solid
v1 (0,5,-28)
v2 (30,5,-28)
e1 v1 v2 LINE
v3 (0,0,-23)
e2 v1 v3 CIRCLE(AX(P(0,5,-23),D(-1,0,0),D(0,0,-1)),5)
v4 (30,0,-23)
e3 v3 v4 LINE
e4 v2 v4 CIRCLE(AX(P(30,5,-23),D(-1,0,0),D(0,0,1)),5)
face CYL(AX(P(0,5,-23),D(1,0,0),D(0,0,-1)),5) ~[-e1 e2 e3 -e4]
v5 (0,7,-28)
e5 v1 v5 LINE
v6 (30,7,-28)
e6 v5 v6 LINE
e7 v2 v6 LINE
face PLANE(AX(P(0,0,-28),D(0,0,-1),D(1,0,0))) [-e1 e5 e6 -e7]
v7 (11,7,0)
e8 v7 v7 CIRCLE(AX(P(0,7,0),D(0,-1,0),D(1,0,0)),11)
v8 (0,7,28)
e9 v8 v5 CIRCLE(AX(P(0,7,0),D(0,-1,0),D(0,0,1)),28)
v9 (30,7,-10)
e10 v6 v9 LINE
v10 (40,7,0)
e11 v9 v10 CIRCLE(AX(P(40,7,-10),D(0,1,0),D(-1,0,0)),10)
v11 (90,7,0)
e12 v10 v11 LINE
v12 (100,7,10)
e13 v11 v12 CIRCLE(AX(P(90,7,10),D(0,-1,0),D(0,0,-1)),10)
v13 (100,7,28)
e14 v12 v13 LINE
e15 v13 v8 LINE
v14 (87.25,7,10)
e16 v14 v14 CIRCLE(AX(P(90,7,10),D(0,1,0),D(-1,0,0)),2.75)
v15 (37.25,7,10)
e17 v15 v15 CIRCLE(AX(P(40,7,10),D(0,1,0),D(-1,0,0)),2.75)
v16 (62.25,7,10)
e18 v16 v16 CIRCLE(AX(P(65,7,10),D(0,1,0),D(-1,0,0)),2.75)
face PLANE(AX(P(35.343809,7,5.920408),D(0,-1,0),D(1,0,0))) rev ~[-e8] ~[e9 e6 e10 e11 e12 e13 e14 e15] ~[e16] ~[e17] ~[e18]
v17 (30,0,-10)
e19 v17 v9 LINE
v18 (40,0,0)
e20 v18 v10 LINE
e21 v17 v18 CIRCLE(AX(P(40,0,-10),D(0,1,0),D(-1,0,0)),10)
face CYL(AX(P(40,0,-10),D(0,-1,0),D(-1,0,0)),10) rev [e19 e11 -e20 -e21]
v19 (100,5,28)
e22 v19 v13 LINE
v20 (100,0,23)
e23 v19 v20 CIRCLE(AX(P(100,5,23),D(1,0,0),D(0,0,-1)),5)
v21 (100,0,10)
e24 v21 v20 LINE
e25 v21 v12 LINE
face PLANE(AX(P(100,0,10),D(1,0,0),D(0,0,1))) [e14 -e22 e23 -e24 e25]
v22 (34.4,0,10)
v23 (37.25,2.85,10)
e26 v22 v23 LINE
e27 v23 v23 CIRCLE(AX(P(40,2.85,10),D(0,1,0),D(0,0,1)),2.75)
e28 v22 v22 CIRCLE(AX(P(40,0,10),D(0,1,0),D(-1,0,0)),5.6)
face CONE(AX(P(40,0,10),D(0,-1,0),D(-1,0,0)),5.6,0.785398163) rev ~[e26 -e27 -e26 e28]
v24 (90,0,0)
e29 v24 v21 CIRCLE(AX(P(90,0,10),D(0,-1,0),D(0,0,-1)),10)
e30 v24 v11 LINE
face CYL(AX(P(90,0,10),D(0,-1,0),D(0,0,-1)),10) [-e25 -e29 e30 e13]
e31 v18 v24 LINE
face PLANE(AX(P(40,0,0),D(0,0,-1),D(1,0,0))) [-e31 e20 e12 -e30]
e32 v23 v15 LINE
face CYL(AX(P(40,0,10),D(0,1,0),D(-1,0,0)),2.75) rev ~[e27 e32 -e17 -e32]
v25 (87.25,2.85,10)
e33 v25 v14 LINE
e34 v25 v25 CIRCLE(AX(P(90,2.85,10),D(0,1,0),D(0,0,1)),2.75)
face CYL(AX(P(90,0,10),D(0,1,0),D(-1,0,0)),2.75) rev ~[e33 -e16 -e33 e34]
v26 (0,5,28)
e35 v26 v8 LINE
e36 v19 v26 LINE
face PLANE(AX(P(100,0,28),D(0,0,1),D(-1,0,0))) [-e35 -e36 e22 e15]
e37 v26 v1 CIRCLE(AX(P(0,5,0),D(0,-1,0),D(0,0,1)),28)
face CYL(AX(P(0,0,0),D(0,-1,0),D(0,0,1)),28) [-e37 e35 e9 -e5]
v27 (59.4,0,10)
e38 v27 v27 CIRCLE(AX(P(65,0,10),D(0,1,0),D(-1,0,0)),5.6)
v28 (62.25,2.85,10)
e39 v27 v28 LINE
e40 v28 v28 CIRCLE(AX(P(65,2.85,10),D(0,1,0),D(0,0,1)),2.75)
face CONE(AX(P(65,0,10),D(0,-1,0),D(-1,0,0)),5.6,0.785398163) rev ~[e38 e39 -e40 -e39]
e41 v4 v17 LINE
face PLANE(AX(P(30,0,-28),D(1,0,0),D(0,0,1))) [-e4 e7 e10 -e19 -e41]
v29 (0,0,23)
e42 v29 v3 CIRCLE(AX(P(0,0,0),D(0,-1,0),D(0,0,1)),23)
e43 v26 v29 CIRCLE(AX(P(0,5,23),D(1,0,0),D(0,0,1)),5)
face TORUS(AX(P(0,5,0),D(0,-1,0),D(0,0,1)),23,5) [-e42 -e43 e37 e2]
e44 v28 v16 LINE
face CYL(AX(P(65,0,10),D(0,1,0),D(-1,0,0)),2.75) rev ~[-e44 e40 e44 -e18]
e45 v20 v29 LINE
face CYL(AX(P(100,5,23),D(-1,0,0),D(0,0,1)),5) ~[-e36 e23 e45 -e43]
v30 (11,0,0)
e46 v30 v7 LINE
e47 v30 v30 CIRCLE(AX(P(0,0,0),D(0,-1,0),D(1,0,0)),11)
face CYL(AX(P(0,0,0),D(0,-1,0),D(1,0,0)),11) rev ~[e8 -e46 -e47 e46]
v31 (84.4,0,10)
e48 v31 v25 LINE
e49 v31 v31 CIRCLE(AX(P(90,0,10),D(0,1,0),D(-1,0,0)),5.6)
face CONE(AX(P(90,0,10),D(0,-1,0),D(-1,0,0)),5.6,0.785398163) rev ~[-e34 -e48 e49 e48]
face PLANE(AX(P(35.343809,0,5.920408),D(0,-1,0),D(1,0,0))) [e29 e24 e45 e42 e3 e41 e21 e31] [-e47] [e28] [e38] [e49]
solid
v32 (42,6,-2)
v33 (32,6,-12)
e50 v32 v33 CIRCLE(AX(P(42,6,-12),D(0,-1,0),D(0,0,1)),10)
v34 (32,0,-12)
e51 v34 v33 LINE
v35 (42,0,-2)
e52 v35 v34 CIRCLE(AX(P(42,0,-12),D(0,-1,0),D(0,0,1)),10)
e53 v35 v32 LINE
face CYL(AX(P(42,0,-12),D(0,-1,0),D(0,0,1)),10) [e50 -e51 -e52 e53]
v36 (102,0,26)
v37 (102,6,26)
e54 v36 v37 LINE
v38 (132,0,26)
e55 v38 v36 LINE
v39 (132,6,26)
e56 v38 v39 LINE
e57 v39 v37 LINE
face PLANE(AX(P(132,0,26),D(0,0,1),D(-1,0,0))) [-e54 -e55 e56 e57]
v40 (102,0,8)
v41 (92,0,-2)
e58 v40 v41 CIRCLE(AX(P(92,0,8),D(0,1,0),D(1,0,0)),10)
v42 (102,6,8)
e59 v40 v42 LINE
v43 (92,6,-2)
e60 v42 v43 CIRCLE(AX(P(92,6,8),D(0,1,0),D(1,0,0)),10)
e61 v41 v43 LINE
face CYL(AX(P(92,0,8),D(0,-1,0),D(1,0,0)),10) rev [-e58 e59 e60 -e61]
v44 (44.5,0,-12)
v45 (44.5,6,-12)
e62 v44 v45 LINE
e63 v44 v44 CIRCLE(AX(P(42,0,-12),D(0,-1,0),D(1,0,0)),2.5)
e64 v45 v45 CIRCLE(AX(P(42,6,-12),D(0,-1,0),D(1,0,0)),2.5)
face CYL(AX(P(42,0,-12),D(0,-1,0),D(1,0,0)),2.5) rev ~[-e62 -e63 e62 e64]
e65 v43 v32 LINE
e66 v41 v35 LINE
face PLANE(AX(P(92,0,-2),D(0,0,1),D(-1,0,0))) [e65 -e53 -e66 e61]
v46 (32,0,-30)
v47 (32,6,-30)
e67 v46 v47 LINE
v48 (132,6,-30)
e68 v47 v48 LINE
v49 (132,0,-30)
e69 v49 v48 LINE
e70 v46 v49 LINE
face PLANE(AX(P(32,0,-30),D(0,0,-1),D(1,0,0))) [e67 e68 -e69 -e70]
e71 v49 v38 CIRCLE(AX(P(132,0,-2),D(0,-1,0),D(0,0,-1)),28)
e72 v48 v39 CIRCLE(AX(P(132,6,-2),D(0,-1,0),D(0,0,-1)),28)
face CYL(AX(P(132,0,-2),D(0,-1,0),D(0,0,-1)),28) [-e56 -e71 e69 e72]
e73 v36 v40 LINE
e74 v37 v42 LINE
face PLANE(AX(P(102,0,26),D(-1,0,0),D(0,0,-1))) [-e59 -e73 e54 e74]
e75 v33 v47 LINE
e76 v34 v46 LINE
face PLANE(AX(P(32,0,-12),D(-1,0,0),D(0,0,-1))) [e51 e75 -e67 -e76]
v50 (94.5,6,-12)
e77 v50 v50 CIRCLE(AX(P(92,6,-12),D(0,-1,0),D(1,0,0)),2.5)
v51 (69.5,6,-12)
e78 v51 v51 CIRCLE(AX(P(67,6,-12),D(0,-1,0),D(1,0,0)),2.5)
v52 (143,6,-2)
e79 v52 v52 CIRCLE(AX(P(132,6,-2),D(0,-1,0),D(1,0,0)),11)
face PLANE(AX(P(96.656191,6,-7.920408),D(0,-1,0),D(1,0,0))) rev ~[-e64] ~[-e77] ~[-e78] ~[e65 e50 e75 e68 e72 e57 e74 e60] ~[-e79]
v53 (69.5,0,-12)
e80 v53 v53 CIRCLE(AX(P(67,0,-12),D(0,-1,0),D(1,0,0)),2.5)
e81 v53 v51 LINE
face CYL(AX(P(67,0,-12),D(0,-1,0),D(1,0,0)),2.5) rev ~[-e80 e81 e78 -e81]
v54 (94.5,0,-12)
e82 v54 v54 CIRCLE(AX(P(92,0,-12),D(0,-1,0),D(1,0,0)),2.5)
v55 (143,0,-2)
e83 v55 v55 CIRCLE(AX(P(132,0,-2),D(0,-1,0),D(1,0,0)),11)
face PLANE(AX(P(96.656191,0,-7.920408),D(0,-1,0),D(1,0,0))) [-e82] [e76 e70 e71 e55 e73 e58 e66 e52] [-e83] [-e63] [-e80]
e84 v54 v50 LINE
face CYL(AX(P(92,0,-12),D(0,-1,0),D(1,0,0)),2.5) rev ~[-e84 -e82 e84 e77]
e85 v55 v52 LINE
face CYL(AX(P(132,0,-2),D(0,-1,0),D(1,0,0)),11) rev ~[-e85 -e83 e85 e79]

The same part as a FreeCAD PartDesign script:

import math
import FreeCAD as App
import Part
import Sketcher

V = App.Vector


def edges_at(feature, points):
    """Names of the edges that pass closest to the given points."""
    edges = feature.Shape.Edges
    near = lambda p: min(range(len(edges)), key=lambda i: edges[i].distToShape(Part.Vertex(*p))[0])
    return sorted({f"Edge{near(p) + 1}" for p in points})

doc = App.newDocument("Part")
body = doc.addObject("PartDesign::Body", "Body")

# Sketch on XZ plane
sketch1 = doc.addObject("Sketcher::SketchObject", "Sketch")
body.addObject(sketch1)
sketch1.AttachmentSupport = (doc.XZ_Plane, [""])
sketch1.MapMode = "FlatFace"
sketch1.addGeometry(Part.LineSegment(V(100, 28, 0), V(0, 28, 0)), False)
sketch1.addGeometry(Part.ArcOfCircle(Part.Circle(V(0, 0, 0), V(0, 0, 1), 28), math.radians(90), math.radians(270)), False)
sketch1.addGeometry(Part.LineSegment(V(0, -28, 0), V(30, -28, 0)), False)
sketch1.addGeometry(Part.LineSegment(V(30, -28, 0), V(30, -10, 0)), False)
sketch1.addGeometry(Part.ArcOfCircle(Part.Circle(V(40, -10, 0), V(0, 0, 1), 10), math.radians(90), math.radians(180)), False)
sketch1.addGeometry(Part.LineSegment(V(40, 0, 0), V(90, 0, 0)), False)
sketch1.addGeometry(Part.ArcOfCircle(Part.Circle(V(90, 10, 0), V(0, 0, 1), 10), math.radians(-90), math.radians(0)), False)
sketch1.addGeometry(Part.LineSegment(V(100, 10, 0), V(100, 28, 0)), False)
sketch1.addGeometry(Part.Circle(V(0, 0, 0), V(0, 0, 1), 11), False)
sketch1.addGeometry(Part.Circle(V(40, 10, 0), V(0, 0, 1), 2.5), False)
sketch1.addGeometry(Part.Circle(V(65, 10, 0), V(0, 0, 1), 2.5), False)
sketch1.addGeometry(Part.Circle(V(90, 10, 0), V(0, 0, 1), 2.5), False)
sketch1.addConstraint(Sketcher.Constraint("Tangent", 0, 2, 1, 1))
sketch1.addConstraint(Sketcher.Constraint("Tangent", 1, 2, 2, 1))
sketch1.addConstraint(Sketcher.Constraint("Coincident", 2, 2, 3, 1))
sketch1.addConstraint(Sketcher.Constraint("Tangent", 3, 2, 4, 2))
sketch1.addConstraint(Sketcher.Constraint("Tangent", 4, 1, 5, 1))
sketch1.addConstraint(Sketcher.Constraint("Tangent", 5, 2, 6, 1))
sketch1.addConstraint(Sketcher.Constraint("Tangent", 6, 2, 7, 1))
sketch1.addConstraint(Sketcher.Constraint("Coincident", 7, 2, 0, 1))
sketch1.addConstraint(Sketcher.Constraint("Horizontal", 0))
sketch1.addConstraint(Sketcher.Constraint("Horizontal", 2))
sketch1.addConstraint(Sketcher.Constraint("Vertical", 3))
sketch1.addConstraint(Sketcher.Constraint("Horizontal", 5))
sketch1.addConstraint(Sketcher.Constraint("Vertical", 7))
sketch1.addConstraint(Sketcher.Constraint("Coincident", 1, 3, -1, 1))
sketch1.addConstraint(Sketcher.Constraint("Coincident", 8, 3, -1, 1))
sketch1.addConstraint(Sketcher.Constraint("Coincident", 11, 3, 6, 3))
sketch1.addConstraint(Sketcher.Constraint("Equal", 4, 6))
sketch1.addConstraint(Sketcher.Constraint("Equal", 9, 10))
sketch1.addConstraint(Sketcher.Constraint("Equal", 10, 11))
sketch1.addConstraint(Sketcher.Constraint("Symmetric", 4, 3, 9, 3, -1))
sketch1.addConstraint(Sketcher.Constraint("PointOnObject", 4, 1, -1))
sketch1.addConstraint(Sketcher.Constraint("Horizontal", 9, 3, 10, 3))
sketch1.addConstraint(Sketcher.Constraint("Diameter", 8, 22.0))
sketch1.addConstraint(Sketcher.Constraint("Diameter", 9, 5.0))
sketch1.addConstraint(Sketcher.Constraint("Radius", 1, 28.0))
sketch1.addConstraint(Sketcher.Constraint("Radius", 4, 10.0))
sketch1.addConstraint(Sketcher.Constraint("DistanceX", 0, 2, 0, 1, 100.0))
sketch1.addConstraint(Sketcher.Constraint("DistanceX", 2, 1, 2, 2, 30.0))
sketch1.addConstraint(Sketcher.Constraint("DistanceX", -1, 1, 10, 3, 65.0))
pad1 = doc.addObject("PartDesign::Pad", "Pad")
body.addObject(pad1)
pad1.Profile = sketch1
pad1.Length = 7
pad1.Reversed = True
doc.recompute()

fillet = doc.addObject("PartDesign::Fillet", "Fillet")
body.addObject(fillet)
fillet.Base = (pad1, edges_at(pad1, [(50, 0, 28)]))
fillet.Radius = 5

# Sketch on XZ plane
sketch2 = doc.addObject("Sketcher::SketchObject", "Sketch001")
body.addObject(sketch2)
sketch2.AttachmentSupport = (doc.XZ_Plane, [""])
sketch2.MapMode = "FlatFace"
sketch2.addGeometry(Part.Circle(V(90, 10, 0), V(0, 0, 1), 2.8), False)
sketch2.addGeometry(Part.Circle(V(65, 10, 0), V(0, 0, 1), 2.8), False)
sketch2.addGeometry(Part.Circle(V(40, 10, 0), V(0, 0, 1), 2.8), False)
sketch2.addConstraint(Sketcher.Constraint("Equal", 0, 1))
sketch2.addConstraint(Sketcher.Constraint("Equal", 1, 2))
sketch2.addConstraint(Sketcher.Constraint("Horizontal", 0, 3, 1, 3))
sketch2.addConstraint(Sketcher.Constraint("Horizontal", 1, 3, 2, 3))
sketch2.addConstraint(Sketcher.Constraint("Diameter", 0, 5.5))
sketch2.addConstraint(Sketcher.Constraint("DistanceX", -1, 1, 0, 3, 90.0))
sketch2.addConstraint(Sketcher.Constraint("DistanceY", -1, 1, 0, 3, 10.0))
sketch2.addConstraint(Sketcher.Constraint("DistanceX", -1, 1, 1, 3, 65.0))
sketch2.addConstraint(Sketcher.Constraint("DistanceX", -1, 1, 2, 3, 40.0))
doc.recompute()
hole = doc.addObject("PartDesign::Hole", "Hole")
body.addObject(hole)
hole.Profile = sketch2
hole.ThreadType = "None"
hole.Diameter = 5.5
hole.DepthType = "ThroughAll"
hole.HoleCutType = "Countersink"
hole.HoleCutDiameter = 11.2
hole.HoleCutCountersinkAngle = 90
body2 = doc.addObject("PartDesign::Body", "Body001")

# Sketch on XZ plane
sketch3 = doc.addObject("Sketcher::SketchObject", "Sketch002")
body2.addObject(sketch3)
sketch3.AttachmentSupport = (doc.getObject("XZ_Plane001"), [""])
sketch3.MapMode = "FlatFace"
sketch3.addGeometry(Part.LineSegment(V(32, -30, 0), V(132, -30, 0)), False)
sketch3.addGeometry(Part.ArcOfCircle(Part.Circle(V(132, -2, 0), V(0, 0, 1), 28), math.radians(-90), math.radians(90)), False)
sketch3.addGeometry(Part.LineSegment(V(132, 26, 0), V(102, 26, 0)), False)
sketch3.addGeometry(Part.LineSegment(V(102, 26, 0), V(102, 8, 0)), False)
sketch3.addGeometry(Part.ArcOfCircle(Part.Circle(V(92, 8, 0), V(0, 0, 1), 10), math.radians(-90), math.radians(0)), False)
sketch3.addGeometry(Part.LineSegment(V(92, -2, 0), V(42, -2, 0)), False)
sketch3.addGeometry(Part.ArcOfCircle(Part.Circle(V(42, -12, 0), V(0, 0, 1), 10), math.radians(90), math.radians(180)), False)
sketch3.addGeometry(Part.LineSegment(V(32, -12, 0), V(32, -30, 0)), False)
sketch3.addGeometry(Part.Circle(V(42, -12, 0), V(0, 0, 1), 2.5), False)
sketch3.addGeometry(Part.Circle(V(67, -12, 0), V(0, 0, 1), 2.5), False)
sketch3.addGeometry(Part.Circle(V(92, -12, 0), V(0, 0, 1), 2.5), False)
sketch3.addGeometry(Part.Circle(V(132, -2, 0), V(0, 0, 1), 11), False)
sketch3.addConstraint(Sketcher.Constraint("Tangent", 0, 2, 1, 1))
sketch3.addConstraint(Sketcher.Constraint("Tangent", 1, 2, 2, 1))
sketch3.addConstraint(Sketcher.Constraint("Coincident", 2, 2, 3, 1))
sketch3.addConstraint(Sketcher.Constraint("Tangent", 3, 2, 4, 2))
sketch3.addConstraint(Sketcher.Constraint("Tangent", 4, 1, 5, 1))
sketch3.addConstraint(Sketcher.Constraint("Tangent", 5, 2, 6, 1))
sketch3.addConstraint(Sketcher.Constraint("Tangent", 6, 2, 7, 1))
sketch3.addConstraint(Sketcher.Constraint("Coincident", 7, 2, 0, 1))
sketch3.addConstraint(Sketcher.Constraint("Horizontal", 0))
sketch3.addConstraint(Sketcher.Constraint("Horizontal", 2))
sketch3.addConstraint(Sketcher.Constraint("Vertical", 3))
sketch3.addConstraint(Sketcher.Constraint("Horizontal", 5))
sketch3.addConstraint(Sketcher.Constraint("Vertical", 7))
sketch3.addConstraint(Sketcher.Constraint("Coincident", 8, 3, 6, 3))
sketch3.addConstraint(Sketcher.Constraint("Coincident", 11, 3, 1, 3))
sketch3.addConstraint(Sketcher.Constraint("Equal", 4, 6))
sketch3.addConstraint(Sketcher.Constraint("Equal", 8, 9))
sketch3.addConstraint(Sketcher.Constraint("Equal", 9, 10))
sketch3.addConstraint(Sketcher.Constraint("Horizontal", 8, 3, 9, 3))
sketch3.addConstraint(Sketcher.Constraint("Horizontal", 9, 3, 10, 3))
sketch3.addConstraint(Sketcher.Constraint("Horizontal", 11, 3, 4, 1))
sketch3.addConstraint(Sketcher.Constraint("Vertical", 4, 3, 10, 3))
sketch3.addConstraint(Sketcher.Constraint("Diameter", 8, 5.0))
sketch3.addConstraint(Sketcher.Constraint("Diameter", 11, 22.0))
sketch3.addConstraint(Sketcher.Constraint("Radius", 1, 28.0))
sketch3.addConstraint(Sketcher.Constraint("Radius", 4, 10.0))
sketch3.addConstraint(Sketcher.Constraint("DistanceX", 0, 1, 0, 2, 100.0))
sketch3.addConstraint(Sketcher.Constraint("DistanceX", 2, 2, 2, 1, 30.0))
sketch3.addConstraint(Sketcher.Constraint("DistanceX", -1, 1, 1, 3, 132.0))
sketch3.addConstraint(Sketcher.Constraint("DistanceY", 1, 3, -1, 1, 2.0))
sketch3.addConstraint(Sketcher.Constraint("DistanceX", -1, 1, 9, 3, 67.0))
pad2 = doc.addObject("PartDesign::Pad", "Pad001")
body2.addObject(pad2)
pad2.Profile = sketch3
pad2.Length = 6
pad2.Reversed = True

doc.recompute()
